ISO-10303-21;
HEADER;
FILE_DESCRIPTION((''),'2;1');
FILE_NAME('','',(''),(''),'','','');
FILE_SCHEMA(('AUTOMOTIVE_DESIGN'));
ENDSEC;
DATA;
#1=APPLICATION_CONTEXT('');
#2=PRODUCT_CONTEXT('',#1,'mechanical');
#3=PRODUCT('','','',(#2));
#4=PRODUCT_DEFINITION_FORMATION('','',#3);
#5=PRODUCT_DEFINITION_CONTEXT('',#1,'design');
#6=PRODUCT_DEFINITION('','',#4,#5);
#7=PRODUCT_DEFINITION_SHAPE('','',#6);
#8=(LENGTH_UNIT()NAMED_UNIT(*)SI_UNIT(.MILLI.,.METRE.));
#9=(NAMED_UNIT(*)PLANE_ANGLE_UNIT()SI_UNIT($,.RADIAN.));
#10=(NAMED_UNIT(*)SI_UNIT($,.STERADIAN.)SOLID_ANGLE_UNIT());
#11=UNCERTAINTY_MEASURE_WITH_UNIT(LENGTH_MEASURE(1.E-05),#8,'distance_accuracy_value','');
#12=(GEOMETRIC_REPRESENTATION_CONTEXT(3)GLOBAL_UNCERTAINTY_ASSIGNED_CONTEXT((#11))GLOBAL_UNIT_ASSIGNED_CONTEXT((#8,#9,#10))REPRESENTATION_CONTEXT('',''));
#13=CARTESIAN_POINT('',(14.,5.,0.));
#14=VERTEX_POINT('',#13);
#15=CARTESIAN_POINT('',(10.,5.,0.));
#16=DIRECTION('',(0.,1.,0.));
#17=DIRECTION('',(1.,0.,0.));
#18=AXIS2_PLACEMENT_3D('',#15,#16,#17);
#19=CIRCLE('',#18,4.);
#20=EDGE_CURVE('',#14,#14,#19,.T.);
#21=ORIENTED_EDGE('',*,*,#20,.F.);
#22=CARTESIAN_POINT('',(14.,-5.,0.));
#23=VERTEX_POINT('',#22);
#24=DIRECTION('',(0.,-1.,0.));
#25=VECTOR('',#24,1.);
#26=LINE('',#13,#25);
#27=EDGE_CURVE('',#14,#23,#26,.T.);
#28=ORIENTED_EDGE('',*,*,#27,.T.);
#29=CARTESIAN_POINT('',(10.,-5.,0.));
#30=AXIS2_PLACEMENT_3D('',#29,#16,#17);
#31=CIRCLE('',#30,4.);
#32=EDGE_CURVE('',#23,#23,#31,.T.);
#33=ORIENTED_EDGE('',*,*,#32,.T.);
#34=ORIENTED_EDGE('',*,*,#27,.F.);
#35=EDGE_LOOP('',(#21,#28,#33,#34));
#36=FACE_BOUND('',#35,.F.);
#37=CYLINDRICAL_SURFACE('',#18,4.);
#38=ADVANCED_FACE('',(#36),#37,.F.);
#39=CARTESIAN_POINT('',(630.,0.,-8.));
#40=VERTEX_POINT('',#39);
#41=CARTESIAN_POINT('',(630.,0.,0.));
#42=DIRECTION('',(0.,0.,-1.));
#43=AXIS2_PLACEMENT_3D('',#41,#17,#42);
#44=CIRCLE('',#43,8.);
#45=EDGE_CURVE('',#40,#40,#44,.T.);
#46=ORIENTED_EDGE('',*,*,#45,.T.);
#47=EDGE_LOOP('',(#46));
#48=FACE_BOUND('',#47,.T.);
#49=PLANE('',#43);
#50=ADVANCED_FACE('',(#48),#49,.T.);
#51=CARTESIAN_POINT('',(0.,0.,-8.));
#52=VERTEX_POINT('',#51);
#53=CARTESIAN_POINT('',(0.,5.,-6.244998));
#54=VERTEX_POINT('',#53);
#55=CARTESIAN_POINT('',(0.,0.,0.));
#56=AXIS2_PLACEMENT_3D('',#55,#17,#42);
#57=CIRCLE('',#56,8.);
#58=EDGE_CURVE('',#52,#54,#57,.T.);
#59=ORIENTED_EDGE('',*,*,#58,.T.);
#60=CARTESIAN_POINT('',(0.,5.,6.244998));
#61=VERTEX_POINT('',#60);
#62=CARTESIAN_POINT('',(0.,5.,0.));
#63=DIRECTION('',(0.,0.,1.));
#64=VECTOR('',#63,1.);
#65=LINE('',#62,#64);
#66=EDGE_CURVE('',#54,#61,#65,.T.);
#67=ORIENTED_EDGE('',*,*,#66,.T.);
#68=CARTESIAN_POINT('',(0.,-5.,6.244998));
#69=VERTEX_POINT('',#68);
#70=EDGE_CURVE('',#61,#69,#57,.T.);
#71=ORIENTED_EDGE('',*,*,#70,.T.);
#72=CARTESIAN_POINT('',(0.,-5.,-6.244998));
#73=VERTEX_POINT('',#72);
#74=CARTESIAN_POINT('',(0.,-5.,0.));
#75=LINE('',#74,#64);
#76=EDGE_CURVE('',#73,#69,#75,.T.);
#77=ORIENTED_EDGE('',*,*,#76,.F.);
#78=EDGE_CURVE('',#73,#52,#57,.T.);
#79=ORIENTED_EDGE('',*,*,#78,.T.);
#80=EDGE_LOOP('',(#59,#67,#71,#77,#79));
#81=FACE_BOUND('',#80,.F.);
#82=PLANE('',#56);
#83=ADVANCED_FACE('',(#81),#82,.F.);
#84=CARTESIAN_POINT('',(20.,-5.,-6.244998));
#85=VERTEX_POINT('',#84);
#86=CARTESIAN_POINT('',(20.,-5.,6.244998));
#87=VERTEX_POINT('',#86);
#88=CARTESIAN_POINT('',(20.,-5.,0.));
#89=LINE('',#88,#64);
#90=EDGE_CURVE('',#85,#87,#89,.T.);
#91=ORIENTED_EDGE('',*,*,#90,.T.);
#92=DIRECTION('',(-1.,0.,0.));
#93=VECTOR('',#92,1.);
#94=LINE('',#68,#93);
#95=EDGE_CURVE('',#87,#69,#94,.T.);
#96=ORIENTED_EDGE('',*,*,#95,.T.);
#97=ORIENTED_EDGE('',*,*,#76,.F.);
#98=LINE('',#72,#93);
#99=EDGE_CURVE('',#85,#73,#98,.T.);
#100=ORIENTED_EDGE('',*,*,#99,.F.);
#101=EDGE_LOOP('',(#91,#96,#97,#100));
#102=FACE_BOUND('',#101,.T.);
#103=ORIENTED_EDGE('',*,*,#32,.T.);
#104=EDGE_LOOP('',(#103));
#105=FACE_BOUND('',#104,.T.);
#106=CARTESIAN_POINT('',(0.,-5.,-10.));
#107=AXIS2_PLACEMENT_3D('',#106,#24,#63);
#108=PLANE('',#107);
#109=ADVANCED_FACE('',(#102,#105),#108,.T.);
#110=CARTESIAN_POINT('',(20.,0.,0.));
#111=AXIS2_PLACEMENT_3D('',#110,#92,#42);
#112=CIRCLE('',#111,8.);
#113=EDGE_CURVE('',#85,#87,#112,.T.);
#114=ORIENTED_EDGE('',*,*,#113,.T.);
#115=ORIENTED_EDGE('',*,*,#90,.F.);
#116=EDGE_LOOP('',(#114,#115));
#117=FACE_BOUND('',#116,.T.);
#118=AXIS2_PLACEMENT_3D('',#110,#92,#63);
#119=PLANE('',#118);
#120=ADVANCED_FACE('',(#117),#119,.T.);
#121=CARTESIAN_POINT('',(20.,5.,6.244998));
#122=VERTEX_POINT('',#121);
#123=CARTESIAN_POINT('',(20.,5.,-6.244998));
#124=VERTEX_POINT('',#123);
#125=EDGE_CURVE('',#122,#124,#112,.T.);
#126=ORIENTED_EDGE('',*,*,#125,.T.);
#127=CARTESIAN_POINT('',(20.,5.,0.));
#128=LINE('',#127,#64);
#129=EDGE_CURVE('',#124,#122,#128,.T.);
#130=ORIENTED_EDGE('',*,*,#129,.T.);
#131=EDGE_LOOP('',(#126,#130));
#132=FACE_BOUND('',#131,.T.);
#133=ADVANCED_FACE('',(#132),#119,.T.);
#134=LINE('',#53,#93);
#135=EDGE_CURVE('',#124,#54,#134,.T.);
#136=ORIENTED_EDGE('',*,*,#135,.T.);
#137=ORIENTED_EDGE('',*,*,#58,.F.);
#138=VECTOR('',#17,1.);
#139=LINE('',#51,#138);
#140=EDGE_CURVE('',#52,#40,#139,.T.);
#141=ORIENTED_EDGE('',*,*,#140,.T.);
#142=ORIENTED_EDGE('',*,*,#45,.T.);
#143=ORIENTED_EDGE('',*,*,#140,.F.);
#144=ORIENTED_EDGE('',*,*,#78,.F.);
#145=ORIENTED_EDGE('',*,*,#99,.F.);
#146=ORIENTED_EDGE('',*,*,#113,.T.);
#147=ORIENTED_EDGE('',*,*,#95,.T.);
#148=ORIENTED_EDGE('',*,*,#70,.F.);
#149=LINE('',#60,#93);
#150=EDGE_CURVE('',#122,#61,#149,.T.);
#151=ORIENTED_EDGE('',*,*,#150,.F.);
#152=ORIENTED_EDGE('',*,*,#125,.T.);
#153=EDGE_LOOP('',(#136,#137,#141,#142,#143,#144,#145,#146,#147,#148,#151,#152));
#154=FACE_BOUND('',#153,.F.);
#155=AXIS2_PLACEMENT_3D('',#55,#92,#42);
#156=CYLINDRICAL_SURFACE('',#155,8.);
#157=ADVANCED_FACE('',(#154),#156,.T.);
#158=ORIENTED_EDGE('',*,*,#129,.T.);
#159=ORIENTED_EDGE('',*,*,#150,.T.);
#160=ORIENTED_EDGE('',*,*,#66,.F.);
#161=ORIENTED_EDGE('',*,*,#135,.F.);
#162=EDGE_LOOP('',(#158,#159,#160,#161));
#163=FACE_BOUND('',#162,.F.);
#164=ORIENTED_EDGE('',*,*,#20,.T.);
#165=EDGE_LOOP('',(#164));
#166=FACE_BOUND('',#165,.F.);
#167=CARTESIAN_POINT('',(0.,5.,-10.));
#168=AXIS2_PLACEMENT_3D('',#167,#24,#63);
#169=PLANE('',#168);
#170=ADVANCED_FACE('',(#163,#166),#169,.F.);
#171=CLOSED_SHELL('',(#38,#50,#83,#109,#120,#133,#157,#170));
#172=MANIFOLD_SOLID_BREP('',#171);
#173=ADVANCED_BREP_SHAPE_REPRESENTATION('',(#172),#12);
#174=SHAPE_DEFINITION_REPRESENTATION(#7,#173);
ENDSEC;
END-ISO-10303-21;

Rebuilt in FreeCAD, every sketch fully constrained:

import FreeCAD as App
import Part
import Sketcher

V = App.Vector
Q = App.Units.Quantity


def add_polygon(sketch, points):
    """Adds a closed chain of lines whose ends are joined by coincident constraints."""
    first, n = sketch.GeometryCount, len(points)
    for a, b in zip(points, points[1:] + points[:1]):
        sketch.addGeometry(Part.LineSegment(App.Vector(*a, 0), App.Vector(*b, 0)), False)
    for i in range(n):
        sketch.addConstraint(Sketcher.Constraint("Coincident", first + i, 2, first + (i + 1) % n, 1))

doc = App.newDocument("Part")
body = doc.addObject("PartDesign::Body", "Body")

sketch1 = doc.addObject("Sketcher::SketchObject", "Sketch")
body.addObject(sketch1)
sketch1.AttachmentSupport = (doc.YZ_Plane, [""])
sketch1.MapMode = "FlatFace"
sketch1.addGeometry(Part.Circle(V(0, 0, 0), V(0, 0, 1), 8), False)
sketch1.addConstraint([
    Sketcher.Constraint("Coincident", 0, 3, -1, 1),
    Sketcher.Constraint("Diameter", 0, Q("16 mm")),
])
pad1 = doc.addObject("PartDesign::Pad", "Pad")
body.addObject(pad1)
pad1.Profile = sketch1
pad1.Length = 630

sketch2 = doc.addObject("Sketcher::SketchObject", "Sketch001")
body.addObject(sketch2)
sketch2.AttachmentSupport = (doc.YZ_Plane, [""])
sketch2.MapMode = "FlatFace"
add_polygon(sketch2, [(72, -72), (-72, -72), (-72, 72), (72, 72)])
add_polygon(sketch2, [(-5, 10), (-5, -10), (5, -10), (5, 10)])
sketch2.addConstraint([
    Sketcher.Constraint("Horizontal", 0),
    Sketcher.Constraint("Vertical", 1),
    Sketcher.Constraint("Horizontal", 2),
    Sketcher.Constraint("Vertical", 3),
    Sketcher.Constraint("Vertical", 4),
    Sketcher.Constraint("Horizontal", 5),
    Sketcher.Constraint("Vertical", 6),
    Sketcher.Constraint("Horizontal", 7),
    Sketcher.Constraint("Symmetric", 0, 2, 2, 2, -1, 1),
    Sketcher.Constraint("Symmetric", 4, 2, 6, 2, -1, 1),
    Sketcher.Constraint("Equal", 2, 1),
    Sketcher.Constraint("DistanceX", 5, 1, 5, 2, Q("10 mm")),
    Sketcher.Constraint("DistanceY", 4, 2, 4, 1, Q("20 mm")),
    Sketcher.Constraint("DistanceX", 0, 2, 0, 1, Q("144.082 mm")),
])
pocket1 = doc.addObject("PartDesign::Pocket", "Pocket")
body.addObject(pocket1)
pocket1.Profile = sketch2
pocket1.Length = 20
pocket1.Reversed = True

sketch3 = doc.addObject("Sketcher::SketchObject", "Sketch002")
body.addObject(sketch3)
sketch3.AttachmentSupport = (doc.XZ_Plane, [""])
sketch3.MapMode = "FlatFace"
sketch3.AttachmentOffset = App.Placement(V(0, 0, -5), App.Rotation())
sketch3.addGeometry(Part.Circle(V(10, 0, 0), V(0, 0, 1), 4), False)
sketch3.addConstraint([
    Sketcher.Constraint("PointOnObject", 0, 3, -1),
    Sketcher.Constraint("Diameter", 0, Q("8 mm")),
    Sketcher.Constraint("DistanceX", -1, 1, 0, 3, Q("10 mm")),
])
pocket2 = doc.addObject("PartDesign::Pocket", "Pocket001")
body.addObject(pocket2)
pocket2.Profile = sketch3
pocket2.Type = "ThroughAll"
pocket2.Reversed = True

doc.recompute()
